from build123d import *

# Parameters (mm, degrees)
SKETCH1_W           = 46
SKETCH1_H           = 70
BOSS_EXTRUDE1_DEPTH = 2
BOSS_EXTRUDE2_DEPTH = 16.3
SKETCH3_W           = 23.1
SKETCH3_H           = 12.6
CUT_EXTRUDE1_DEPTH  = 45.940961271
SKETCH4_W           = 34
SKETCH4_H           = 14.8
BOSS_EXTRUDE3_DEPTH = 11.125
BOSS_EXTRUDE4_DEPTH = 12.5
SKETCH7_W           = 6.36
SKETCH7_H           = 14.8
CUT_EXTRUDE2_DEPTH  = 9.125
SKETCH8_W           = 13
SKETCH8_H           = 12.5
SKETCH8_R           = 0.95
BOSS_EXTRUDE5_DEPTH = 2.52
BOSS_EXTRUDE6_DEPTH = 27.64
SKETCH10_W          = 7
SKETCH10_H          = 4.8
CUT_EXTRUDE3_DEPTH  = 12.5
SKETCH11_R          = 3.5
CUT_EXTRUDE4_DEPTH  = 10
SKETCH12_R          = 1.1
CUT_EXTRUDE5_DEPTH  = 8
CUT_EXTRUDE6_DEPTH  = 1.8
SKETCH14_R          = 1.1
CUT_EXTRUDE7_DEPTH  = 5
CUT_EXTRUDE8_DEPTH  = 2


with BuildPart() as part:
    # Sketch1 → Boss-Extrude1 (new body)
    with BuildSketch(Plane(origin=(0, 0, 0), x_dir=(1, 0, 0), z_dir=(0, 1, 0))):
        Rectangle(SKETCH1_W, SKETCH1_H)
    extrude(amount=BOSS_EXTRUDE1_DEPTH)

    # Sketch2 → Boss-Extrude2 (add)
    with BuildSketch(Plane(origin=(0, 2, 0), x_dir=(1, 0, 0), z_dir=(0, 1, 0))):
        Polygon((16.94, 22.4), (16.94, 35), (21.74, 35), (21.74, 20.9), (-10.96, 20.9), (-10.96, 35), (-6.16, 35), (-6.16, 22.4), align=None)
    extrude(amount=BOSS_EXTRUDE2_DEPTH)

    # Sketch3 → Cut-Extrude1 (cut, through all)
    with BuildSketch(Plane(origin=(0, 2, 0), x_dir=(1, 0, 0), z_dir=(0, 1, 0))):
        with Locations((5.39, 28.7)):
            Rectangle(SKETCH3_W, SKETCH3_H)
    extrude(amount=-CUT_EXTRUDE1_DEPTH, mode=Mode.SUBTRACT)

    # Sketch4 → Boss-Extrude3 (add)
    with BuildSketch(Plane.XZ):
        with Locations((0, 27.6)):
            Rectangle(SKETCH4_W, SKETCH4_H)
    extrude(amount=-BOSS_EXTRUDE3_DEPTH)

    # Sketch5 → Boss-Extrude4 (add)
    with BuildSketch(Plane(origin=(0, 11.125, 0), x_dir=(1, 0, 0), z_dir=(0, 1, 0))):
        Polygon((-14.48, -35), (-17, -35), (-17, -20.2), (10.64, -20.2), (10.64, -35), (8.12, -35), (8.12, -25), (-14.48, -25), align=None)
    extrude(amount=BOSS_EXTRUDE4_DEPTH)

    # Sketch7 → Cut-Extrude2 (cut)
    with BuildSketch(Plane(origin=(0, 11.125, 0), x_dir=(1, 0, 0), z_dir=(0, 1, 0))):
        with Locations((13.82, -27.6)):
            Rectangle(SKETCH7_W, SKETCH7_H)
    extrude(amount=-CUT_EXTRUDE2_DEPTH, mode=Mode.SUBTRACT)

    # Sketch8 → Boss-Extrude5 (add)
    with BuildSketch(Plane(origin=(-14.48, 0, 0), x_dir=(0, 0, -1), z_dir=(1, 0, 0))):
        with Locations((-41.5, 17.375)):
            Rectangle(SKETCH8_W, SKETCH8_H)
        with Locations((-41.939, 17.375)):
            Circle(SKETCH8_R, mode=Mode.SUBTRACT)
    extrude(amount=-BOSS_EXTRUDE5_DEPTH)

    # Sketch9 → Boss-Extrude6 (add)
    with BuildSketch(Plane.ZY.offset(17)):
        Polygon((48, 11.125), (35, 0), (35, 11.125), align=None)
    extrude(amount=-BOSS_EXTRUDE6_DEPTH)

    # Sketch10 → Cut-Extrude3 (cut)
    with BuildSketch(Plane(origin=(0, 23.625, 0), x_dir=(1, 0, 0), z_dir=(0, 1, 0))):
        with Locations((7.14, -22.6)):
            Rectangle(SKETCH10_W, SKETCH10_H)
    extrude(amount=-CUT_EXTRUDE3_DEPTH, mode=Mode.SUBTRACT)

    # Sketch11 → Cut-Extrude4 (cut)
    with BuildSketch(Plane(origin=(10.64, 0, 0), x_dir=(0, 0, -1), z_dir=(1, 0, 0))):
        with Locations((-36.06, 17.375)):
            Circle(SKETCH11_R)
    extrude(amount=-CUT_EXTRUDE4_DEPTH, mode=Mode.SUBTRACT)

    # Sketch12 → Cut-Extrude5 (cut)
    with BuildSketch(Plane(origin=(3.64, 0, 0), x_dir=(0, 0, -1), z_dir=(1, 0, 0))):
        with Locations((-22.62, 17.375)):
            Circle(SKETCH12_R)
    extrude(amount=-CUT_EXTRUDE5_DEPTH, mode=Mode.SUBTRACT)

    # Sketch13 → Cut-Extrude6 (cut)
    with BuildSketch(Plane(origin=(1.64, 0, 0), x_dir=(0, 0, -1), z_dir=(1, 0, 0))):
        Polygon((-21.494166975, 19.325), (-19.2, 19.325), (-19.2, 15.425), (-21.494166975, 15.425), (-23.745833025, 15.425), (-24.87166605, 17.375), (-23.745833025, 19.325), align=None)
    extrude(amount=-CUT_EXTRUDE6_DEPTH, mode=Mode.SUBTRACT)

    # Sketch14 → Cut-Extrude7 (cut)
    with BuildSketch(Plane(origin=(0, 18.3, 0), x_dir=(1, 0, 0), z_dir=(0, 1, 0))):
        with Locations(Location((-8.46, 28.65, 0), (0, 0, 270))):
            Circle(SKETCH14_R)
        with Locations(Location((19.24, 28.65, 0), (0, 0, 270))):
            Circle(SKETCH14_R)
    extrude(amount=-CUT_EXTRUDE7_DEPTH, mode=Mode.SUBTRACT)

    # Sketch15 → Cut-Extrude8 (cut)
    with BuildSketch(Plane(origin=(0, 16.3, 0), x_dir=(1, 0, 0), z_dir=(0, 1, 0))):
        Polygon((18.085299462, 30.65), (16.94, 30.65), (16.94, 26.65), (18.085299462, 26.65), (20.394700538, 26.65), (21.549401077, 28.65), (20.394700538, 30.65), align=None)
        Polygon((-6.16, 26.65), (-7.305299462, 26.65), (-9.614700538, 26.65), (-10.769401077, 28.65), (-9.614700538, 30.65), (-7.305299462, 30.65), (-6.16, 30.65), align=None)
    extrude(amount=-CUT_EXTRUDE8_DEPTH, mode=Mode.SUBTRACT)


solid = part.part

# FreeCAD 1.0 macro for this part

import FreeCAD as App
import Part
import Sketcher

V = App.Vector
Q = App.Units.Quantity

doc = App.newDocument("Part")
body = doc.addObject("PartDesign::Body", "Body")

sketch1 = body.newObject("Sketcher::SketchObject", "Sketch")
sketch1.AttachmentSupport = (doc.getObject("XZ_Plane"), [""])
sketch1.MapMode = "FlatFace"
sketch1.addGeometry([
    Part.LineSegment(V(-23, -35, 0), V(-23, 35, 0)),
    Part.LineSegment(V(-23, 35, 0), V(23, 35, 0)),
    Part.LineSegment(V(23, 35, 0), V(23, -35, 0)),
    Part.LineSegment(V(23, -35, 0), V(-23, -35, 0)),
], False)
sketch1.addConstraint([
    Sketcher.Constraint("Coincident", 0, 2, 1, 1),
    Sketcher.Constraint("Coincident", 1, 2, 2, 1),
    Sketcher.Constraint("Coincident", 2, 2, 3, 1),
    Sketcher.Constraint("Coincident", 3, 2, 0, 1),
    Sketcher.Constraint("Vertical", 0),
    Sketcher.Constraint("Horizontal", 1),
    Sketcher.Constraint("Vertical", 2),
    Sketcher.Constraint("Horizontal", 3),
    Sketcher.Constraint("Symmetric", 0, 2, 2, 2, -1, 1),
    Sketcher.Constraint("DistanceX", 1, 1, 1, 2, Q("46 mm")),
    Sketcher.Constraint("DistanceY", 0, 1, 0, 2, Q("70 mm")),
])
pad1 = body.newObject("PartDesign::Pad", "Pad")
pad1.Profile = sketch1
pad1.Length = 2
pad1.Reversed = True

sketch2 = body.newObject("Sketcher::SketchObject", "Sketch001")
sketch2.AttachmentSupport = (doc.getObject("XZ_Plane"), [""])
sketch2.MapMode = "FlatFace"
sketch2.AttachmentOffset = App.Placement(V(0, 0, -2), App.Rotation())
sketch2.addGeometry([
    Part.LineSegment(V(16.9, -35, 0), V(16.9, -22.4, 0)),
    Part.LineSegment(V(16.9, -22.4, 0), V(-6.2, -22.4, 0)),
    Part.LineSegment(V(-6.2, -22.4, 0), V(-6.2, -35, 0)),
    Part.LineSegment(V(-6.2, -35, 0), V(-11, -35, 0)),
    Part.LineSegment(V(-11, -35, 0), V(-11, -20.9, 0)),
    Part.LineSegment(V(-11, -20.9, 0), V(21.7, -20.9, 0)),
    Part.LineSegment(V(21.7, -20.9, 0), V(21.7, -35, 0)),
    Part.LineSegment(V(21.7, -35, 0), V(16.9, -35, 0)),
], False)
sketch2.addConstraint([
    Sketcher.Constraint("Coincident", 0, 2, 1, 1),
    Sketcher.Constraint("Coincident", 1, 2, 2, 1),
    Sketcher.Constraint("Coincident", 2, 2, 3, 1),
    Sketcher.Constraint("Coincident", 3, 2, 4, 1),
    Sketcher.Constraint("Coincident", 4, 2, 5, 1),
    Sketcher.Constraint("Coincident", 5, 2, 6, 1),
    Sketcher.Constraint("Coincident", 6, 2, 7, 1),
    Sketcher.Constraint("Coincident", 7, 2, 0, 1),
    Sketcher.Constraint("Vertical", 0),
    Sketcher.Constraint("Horizontal", 1),
    Sketcher.Constraint("Vertical", 2),
    Sketcher.Constraint("Horizontal", 3),
    Sketcher.Constraint("Vertical", 4),
    Sketcher.Constraint("Horizontal", 5),
    Sketcher.Constraint("Vertical", 6),
    Sketcher.Constraint("Horizontal", 7),
    Sketcher.Constraint("Horizontal", 3, 2, 6, 2),
    Sketcher.Constraint("Equal", 3, 7),
    Sketcher.Constraint("DistanceX", 1, 2, 1, 1, Q("23.1 mm")),
    Sketcher.Constraint("DistanceX", 3, 2, 3, 1, Q("4.8 mm")),
    Sketcher.Constraint("DistanceY", 0, 1, 0, 2, Q("12.6 mm")),
    Sketcher.Constraint("DistanceY", 4, 1, 4, 2, Q("14.1 mm")),
    Sketcher.Constraint("DistanceY", 2, 2, -1, 1, Q("35 mm")),
    Sketcher.Constraint("DistanceX", -1, 1, 0, 2, Q("16.94 mm")),
])
pad2 = body.newObject("PartDesign::Pad", "Pad001")
pad2.Profile = sketch2
pad2.Length = 16.3
pad2.Reversed = True

sketch3 = body.newObject("Sketcher::SketchObject", "Sketch002")
sketch3.AttachmentSupport = (doc.getObject("XZ_Plane"), [""])
sketch3.MapMode = "FlatFace"
sketch3.AttachmentOffset = App.Placement(V(0, 0, -2), App.Rotation())
sketch3.addGeometry([
    Part.LineSegment(V(-6, -35, 0), V(-6, -22, 0)),
    Part.LineSegment(V(-6, -22, 0), V(17, -22, 0)),
    Part.LineSegment(V(17, -22, 0), V(17, -35, 0)),
    Part.LineSegment(V(17, -35, 0), V(-6, -35, 0)),
], False)
sketch3.addConstraint([
    Sketcher.Constraint("Coincident", 0, 2, 1, 1),
    Sketcher.Constraint("Coincident", 1, 2, 2, 1),
    Sketcher.Constraint("Coincident", 2, 2, 3, 1),
    Sketcher.Constraint("Coincident", 3, 2, 0, 1),
    Sketcher.Constraint("Vertical", 0),
    Sketcher.Constraint("Horizontal", 1),
    Sketcher.Constraint("Vertical", 2),
    Sketcher.Constraint("Horizontal", 3),
    Sketcher.Constraint("DistanceX", 1, 1, 1, 2, Q("23.1 mm")),
    Sketcher.Constraint("DistanceY", 0, 1, 0, 2, Q("12.6 mm")),
    Sketcher.Constraint("DistanceY", 2, 2, -1, 1, Q("35 mm")),
    Sketcher.Constraint("DistanceX", 0, 2, -1, 1, Q("6.16 mm")),
])
pocket1 = body.newObject("PartDesign::Pocket", "Pocket")
pocket1.Profile = sketch3
pocket1.Type = "ThroughAll"
pocket1.Reversed = True

sketch4 = body.newObject("Sketcher::SketchObject", "Sketch003")
sketch4.AttachmentSupport = (doc.getObject("XZ_Plane"), [""])
sketch4.MapMode = "FlatFace"
sketch4.addGeometry([
    Part.LineSegment(V(-17, 35, 0), V(-17, 20, 0)),
    Part.LineSegment(V(-17, 20, 0), V(17, 20, 0)),
    Part.LineSegment(V(17, 20, 0), V(17, 35, 0)),
    Part.LineSegment(V(17, 35, 0), V(-17, 35, 0)),
], False)
sketch4.addConstraint([
    Sketcher.Constraint("Coincident", 0, 2, 1, 1),
    Sketcher.Constraint("Coincident", 1, 2, 2, 1),
    Sketcher.Constraint("Coincident", 2, 2, 3, 1),
    Sketcher.Constraint("Coincident", 3, 2, 0, 1),
    Sketcher.Constraint("Vertical", 0),
    Sketcher.Constraint("Horizontal", 1),
    Sketcher.Constraint("Vertical", 2),
    Sketcher.Constraint("Horizontal", 3),
    Sketcher.Constraint("DistanceX", 1, 1, 1, 2, Q("34 mm")),
    Sketcher.Constraint("DistanceY", 0, 2, 0, 1, Q("14.8 mm")),
    Sketcher.Constraint("DistanceX", 0, 2, -1, 1, Q("17 mm")),
    Sketcher.Constraint("DistanceY", -1, 1, 2, 2, Q("35 mm")),
])
pad3 = body.newObject("PartDesign::Pad", "Pad002")
pad3.Profile = sketch4
pad3.Length = 11.125
pad3.Reversed = True

sketch5 = body.newObject("Sketcher::SketchObject", "Sketch004")
sketch5.AttachmentSupport = (doc.getObject("XZ_Plane"), [""])
sketch5.MapMode = "FlatFace"
sketch5.AttachmentOffset = App.Placement(V(0, 0, -11.125), App.Rotation())
sketch5.addGeometry([
    Part.LineSegment(V(-17, 35, 0), V(-14.5, 35, 0)),
    Part.LineSegment(V(-14.5, 35, 0), V(-14.5, 25, 0)),
    Part.LineSegment(V(-14.5, 25, 0), V(8.1, 25, 0)),
    Part.LineSegment(V(8.1, 25, 0), V(8.1, 35, 0)),
    Part.LineSegment(V(8.1, 35, 0), V(10.6, 35, 0)),
    Part.LineSegment(V(10.6, 35, 0), V(10.6, 20.2, 0)),
    Part.LineSegment(V(10.6, 20.2, 0), V(-17, 20.2, 0)),
    Part.LineSegment(V(-17, 20.2, 0), V(-17, 35, 0)),
], False)
sketch5.addConstraint([
    Sketcher.Constraint("Coincident", 0, 2, 1, 1),
    Sketcher.Constraint("Coincident", 1, 2, 2, 1),
    Sketcher.Constraint("Coincident", 2, 2, 3, 1),
    Sketcher.Constraint("Coincident", 3, 2, 4, 1),
    Sketcher.Constraint("Coincident", 4, 2, 5, 1),
    Sketcher.Constraint("Coincident", 5, 2, 6, 1),
    Sketcher.Constraint("Coincident", 6, 2, 7, 1),
    Sketcher.Constraint("Coincident", 7, 2, 0, 1),
    Sketcher.Constraint("Horizontal", 0),
    Sketcher.Constraint("Vertical", 1),
    Sketcher.Constraint("Horizontal", 2),
    Sketcher.Constraint("Vertical", 3),
    Sketcher.Constraint("Horizontal", 4),
    Sketcher.Constraint("Vertical", 5),
    Sketcher.Constraint("Horizontal", 6),
    Sketcher.Constraint("Vertical", 7),
    Sketcher.Constraint("Horizontal", 0, 2, 3, 2),
    Sketcher.Constraint("Equal", 0, 4),
    Sketcher.Constraint("DistanceY", 1, 2, 1, 1, Q("10 mm")),
    Sketcher.Constraint("DistanceX", 2, 1, 2, 2, Q("22.6 mm")),
    Sketcher.Constraint("DistanceY", 5, 2, 5, 1, Q("14.8 mm")),
    Sketcher.Constraint("DistanceY", -1, 1, 0, 2, Q("35 mm")),
    Sketcher.Constraint("DistanceX", 6, 2, -1, 1, Q("17 mm")),
    Sketcher.Constraint("DistanceX", 0, 1, 0, 2, Q("2.52 mm")),
])
pad4 = body.newObject("PartDesign::Pad", "Pad003")
pad4.Profile = sketch5
pad4.Length = 12.5
pad4.Reversed = True

sketch6 = body.newObject("Sketcher::SketchObject", "Sketch005")
sketch6.AttachmentSupport = (doc.getObject("XZ_Plane"), [""])
sketch6.MapMode = "FlatFace"
sketch6.AttachmentOffset = App.Placement(V(0, 0, -11.125), App.Rotation())
sketch6.addGeometry([
    Part.LineSegment(V(11, 20, 0), V(11, 35, 0)),
    Part.LineSegment(V(11, 35, 0), V(17, 35, 0)),
    Part.LineSegment(V(17, 35, 0), V(17, 20, 0)),
    Part.LineSegment(V(17, 20, 0), V(11, 20, 0)),
], False)
sketch6.addConstraint([
    Sketcher.Constraint("Coincident", 0, 2, 1, 1),
    Sketcher.Constraint("Coincident", 1, 2, 2, 1),
    Sketcher.Constraint("Coincident", 2, 2, 3, 1),
    Sketcher.Constraint("Coincident", 3, 2, 0, 1),
    Sketcher.Constraint("Vertical", 0),
    Sketcher.Constraint("Horizontal", 1),
    Sketcher.Constraint("Vertical", 2),
    Sketcher.Constraint("Horizontal", 3),
    Sketcher.Constraint("DistanceY", 0, 1, 0, 2, Q("14.8 mm")),
    Sketcher.Constraint("DistanceY", -1, 1, 0, 2, Q("35 mm")),
    Sketcher.Constraint("DistanceX", -1, 1, 1, 2, Q("17 mm")),
    Sketcher.Constraint("DistanceX", 1, 1, 1, 2, Q("6.36 mm")),
])
pocket2 = body.newObject("PartDesign::Pocket", "Pocket001")
pocket2.Profile = sketch6
pocket2.Length = 9.125
pocket2.Reversed = True

sketch7 = body.newObject("Sketcher::SketchObject", "Sketch006")
sketch7.AttachmentSupport = (doc.getObject("YZ_Plane"), [""])
sketch7.MapMode = "FlatFace"
sketch7.AttachmentOffset = App.Placement(V(0, 0, -14.48), App.Rotation())
sketch7.addGeometry([
    Part.LineSegment(V(23.6, 48, 0), V(11.1, 48, 0)),
    Part.LineSegment(V(11.1, 48, 0), V(11.1, 35, 0)),
    Part.LineSegment(V(11.1, 35, 0), V(23.6, 35, 0)),
    Part.LineSegment(V(23.6, 35, 0), V(23.6, 48, 0)),
    Part.Circle(V(17.4, 41.9, 0), V(0, 0, 1), 0.9),
], False)
sketch7.addConstraint([
    Sketcher.Constraint("Coincident", 0, 2, 1, 1),
    Sketcher.Constraint("Coincident", 1, 2, 2, 1),
    Sketcher.Constraint("Coincident", 2, 2, 3, 1),
    Sketcher.Constraint("Coincident", 3, 2, 0, 1),
    Sketcher.Constraint("Horizontal", 0),
    Sketcher.Constraint("Vertical", 1),
    Sketcher.Constraint("Horizontal", 2),
    Sketcher.Constraint("Vertical", 3),
    Sketcher.Constraint("Diameter", 4, Q("1.9 mm")),
    Sketcher.Constraint("DistanceY", 1, 2, 1, 1, Q("13 mm")),
    Sketcher.Constraint("DistanceX", 0, 2, 0, 1, Q("12.5 mm")),
    Sketcher.Constraint("DistanceY", -1, 1, 0, 2, Q("48 mm")),
    Sketcher.Constraint("DistanceX", 0, 2, 4, 3, Q("6.25 mm")),
    Sketcher.Constraint("DistanceX", -1, 1, 4, 3, Q("17.375 mm")),
    Sketcher.Constraint("DistanceY", -1, 1, 4, 3, Q("41.939 mm")),
])
pad5 = body.newObject("PartDesign::Pad", "Pad004")
pad5.Profile = sketch7
pad5.Length = 2.52
pad5.Reversed = True

sketch8 = body.newObject("Sketcher::SketchObject", "Sketch007")
sketch8.AttachmentSupport = (doc.getObject("YZ_Plane"), [""])
sketch8.MapMode = "FlatFace"
sketch8.AttachmentOffset = App.Placement(V(0, 0, -17), App.Rotation())
sketch8.addGeometry([
    Part.LineSegment(V(0, 35, 0), V(11, 48, 0)),
    Part.LineSegment(V(11, 48, 0), V(11, 35, 0)),
    Part.LineSegment(V(11, 35, 0), V(0, 35, 0)),
], False)
sketch8.addConstraint([
    Sketcher.Constraint("Coincident", 0, 2, 1, 1),
    Sketcher.Constraint("Coincident", 1, 2, 2, 1),
    Sketcher.Constraint("Coincident", 2, 2, 0, 1),
    Sketcher.Constraint("Vertical", 1),
    Sketcher.Constraint("Horizontal", 2),
    Sketcher.Constraint("PointOnObject", 2, 2, -2),
    Sketcher.Constraint("DistanceY", 1, 2, 1, 1, Q("13 mm")),
    Sketcher.Constraint("DistanceY", -1, 1, 0, 2, Q("48 mm")),
    Sketcher.Constraint("DistanceX", 2, 2, 2, 1, Q("11.125 mm")),
])
pad6 = body.newObject("PartDesign::Pad", "Pad005")
pad6.Profile = sketch8
pad6.Length = 27.64

sketch9 = body.newObject("Sketcher::SketchObject", "Sketch008")
sketch9.AttachmentSupport = (doc.getObject("XZ_Plane"), [""])
sketch9.MapMode = "FlatFace"
sketch9.AttachmentOffset = App.Placement(V(0, 0, -23.625), App.Rotation())
sketch9.addGeometry([
    Part.LineSegment(V(3.6, 20.2, 0), V(3.6, 25, 0)),
    Part.LineSegment(V(3.6, 25, 0), V(10.6, 25, 0)),
    Part.LineSegment(V(10.6, 25, 0), V(10.6, 20.2, 0)),
    Part.LineSegment(V(10.6, 20.2, 0), V(3.6, 20.2, 0)),
], False)
sketch9.addConstraint([
    Sketcher.Constraint("Coincident", 0, 2, 1, 1),
    Sketcher.Constraint("Coincident", 1, 2, 2, 1),
    Sketcher.Constraint("Coincident", 2, 2, 3, 1),
    Sketcher.Constraint("Coincident", 3, 2, 0, 1),
    Sketcher.Constraint("Vertical", 0),
    Sketcher.Constraint("Horizontal", 1),
    Sketcher.Constraint("Vertical", 2),
    Sketcher.Constraint("Horizontal", 3),
    Sketcher.Constraint("DistanceX", 1, 1, 1, 2, Q("7 mm")),
    Sketcher.Constraint("DistanceY", 0, 1, 0, 2, Q("4.8 mm")),
    Sketcher.Constraint("DistanceY", -1, 1, 0, 2, Q("25 mm")),
    Sketcher.Constraint("DistanceX", -1, 1, 0, 2, Q("3.64 mm")),
])
pocket3 = body.newObject("PartDesign::Pocket", "Pocket002")
pocket3.Profile = sketch9
pocket3.Length = 12.5
pocket3.Reversed = True

sketch10 = body.newObject("Sketcher::SketchObject", "Sketch009")
sketch10.AttachmentSupport = (doc.getObject("YZ_Plane"), [""])
sketch10.MapMode = "FlatFace"
sketch10.AttachmentOffset = App.Placement(V(0, 0, 10.64), App.Rotation())
sketch10.addGeometry(Part.Circle(V(17.4, 36.1, 0), V(0, 0, 1), 3.5), False)
sketch10.addConstraint([
    Sketcher.Constraint("Diameter", 0, Q("7 mm")),
    Sketcher.Constraint("DistanceY", -1, 1, 0, 3, Q("36.06 mm")),
    Sketcher.Constraint("DistanceX", -1, 1, 0, 3, Q("17.375 mm")),
])
pocket4 = body.newObject("PartDesign::Pocket", "Pocket003")
pocket4.Profile = sketch10
pocket4.Length = 10

sketch11 = body.newObject("Sketcher::SketchObject", "Sketch010")
sketch11.AttachmentSupport = (doc.getObject("YZ_Plane"), [""])
sketch11.MapMode = "FlatFace"
sketch11.AttachmentOffset = App.Placement(V(0, 0, 3.64), App.Rotation())
sketch11.addGeometry(Part.Circle(V(17.4, 22.6, 0), V(0, 0, 1), 1.1), False)
sketch11.addConstraint([
    Sketcher.Constraint("Diameter", 0, Q("2.2 mm")),
    Sketcher.Constraint("DistanceY", -1, 1, 0, 3, Q("22.62 mm")),
    Sketcher.Constraint("DistanceX", -1, 1, 0, 3, Q("17.375 mm")),
])
pocket5 = body.newObject("PartDesign::Pocket", "Pocket004")
pocket5.Profile = sketch11
pocket5.Length = 8

sketch12 = body.newObject("Sketcher::SketchObject", "Sketch011")
sketch12.AttachmentSupport = (doc.getObject("YZ_Plane"), [""])
sketch12.MapMode = "FlatFace"
sketch12.AttachmentOffset = App.Placement(V(0, 0, 1.64), App.Rotation())
sketch12.addGeometry([
    Part.LineSegment(V(19.3, 19.2, 0), V(19.3, 23.7, 0)),
    Part.LineSegment(V(19.3, 23.7, 0), V(17.4, 24.9, 0)),
    Part.LineSegment(V(17.4, 24.9, 0), V(15.4, 23.7, 0)),
    Part.LineSegment(V(15.4, 23.7, 0), V(15.4, 19.2, 0)),
    Part.LineSegment(V(15.4, 19.2, 0), V(19.3, 19.2, 0)),
], False)
sketch12.addConstraint([
    Sketcher.Constraint("Coincident", 0, 2, 1, 1),
    Sketcher.Constraint("Coincident", 1, 2, 2, 1),
    Sketcher.Constraint("Coincident", 2, 2, 3, 1),
    Sketcher.Constraint("Coincident", 3, 2, 4, 1),
    Sketcher.Constraint("Coincident", 4, 2, 0, 1),
    Sketcher.Constraint("Vertical", 0),
    Sketcher.Constraint("Vertical", 3),
    Sketcher.Constraint("Horizontal", 4),
    Sketcher.Constraint("Horizontal", 0, 2, 2, 2),
    Sketcher.Constraint("Equal", 1, 2),
    Sketcher.Constraint("Angle", 1, Q("150 deg")),
    Sketcher.Constraint("DistanceX", 4, 1, 4, 2, Q("3.9 mm")),
    Sketcher.Constraint("DistanceY", -1, 1, 3, 2, Q("19.2 mm")),
    Sketcher.Constraint("DistanceX", -1, 1, 0, 2, Q("19.325 mm")),
    Sketcher.Constraint("DistanceY", 0, 1, 0, 2, Q("4.545833 mm")),
])
pocket6 = body.newObject("PartDesign::Pocket", "Pocket005")
pocket6.Profile = sketch12
pocket6.Length = 1.8

sketch13 = body.newObject("Sketcher::SketchObject", "Sketch012")
sketch13.AttachmentSupport = (doc.getObject("XZ_Plane"), [""])
sketch13.MapMode = "FlatFace"
sketch13.AttachmentOffset = App.Placement(V(0, 0, -18.3), App.Rotation())
sketch13.addGeometry([
    Part.Circle(V(-8.5, -28.6, 0), V(0, 0, 1), 1.1),
    Part.Circle(V(19.2, -28.6, 0), V(0, 0, 1), 1.1),
], False)
sketch13.addConstraint([
    Sketcher.Constraint("Equal", 0, 1),
    Sketcher.Constraint("Horizontal", 0, 3, 1, 3),
    Sketcher.Constraint("Diameter", 0, Q("2.2 mm")),
    Sketcher.Constraint("DistanceX", 0, 3, 1, 3, Q("27.7 mm")),
    Sketcher.Constraint("DistanceX", 0, 3, -1, 1, Q("8.46 mm")),
    Sketcher.Constraint("DistanceY", 0, 3, -1, 1, Q("28.65 mm")),
])
pocket7 = body.newObject("PartDesign::Pocket", "Pocket006")
pocket7.Profile = sketch13
pocket7.Length = 5
pocket7.Reversed = True

sketch14 = body.newObject("Sketcher::SketchObject", "Sketch013")
sketch14.AttachmentSupport = (doc.getObject("XZ_Plane"), [""])
sketch14.MapMode = "FlatFace"
sketch14.AttachmentOffset = App.Placement(V(0, 0, -16.3), App.Rotation())
sketch14.addGeometry([
    Part.LineSegment(V(16.9, -30.6, 0), V(16.9, -26.6, 0)),
    Part.LineSegment(V(16.9, -26.6, 0), V(20.4, -26.6, 0)),
    Part.LineSegment(V(20.4, -26.6, 0), V(21.5, -28.6, 0)),
    Part.LineSegment(V(21.5, -28.6, 0), V(20.4, -30.6, 0)),
    Part.LineSegment(V(20.4, -30.6, 0), V(16.9, -30.6, 0)),
    Part.LineSegment(V(-9.6, -26.6, 0), V(-6.2, -26.6, 0)),
    Part.LineSegment(V(-6.2, -26.6, 0), V(-6.2, -30.6, 0)),
    Part.LineSegment(V(-6.2, -30.6, 0), V(-9.6, -30.6, 0)),
    Part.LineSegment(V(-9.6, -30.6, 0), V(-10.8, -28.6, 0)),
    Part.LineSegment(V(-10.8, -28.6, 0), V(-9.6, -26.6, 0)),
], False)
sketch14.addConstraint([
    Sketcher.Constraint("Coincident", 0, 2, 1, 1),
    Sketcher.Constraint("Coincident", 1, 2, 2, 1),
    Sketcher.Constraint("Coincident", 2, 2, 3, 1),
    Sketcher.Constraint("Coincident", 3, 2, 4, 1),
    Sketcher.Constraint("Coincident", 4, 2, 0, 1),
    Sketcher.Constraint("Coincident", 5, 2, 6, 1),
    Sketcher.Constraint("Coincident", 6, 2, 7, 1),
    Sketcher.Constraint("Coincident", 7, 2, 8, 1),
    Sketcher.Constraint("Coincident", 8, 2, 9, 1),
    Sketcher.Constraint("Coincident", 9, 2, 5, 1),
    Sketcher.Constraint("Vertical", 0),
    Sketcher.Constraint("Horizontal", 1),
    Sketcher.Constraint("Horizontal", 4),
    Sketcher.Constraint("Horizontal", 5),
    Sketcher.Constraint("Vertical", 6),
    Sketcher.Constraint("Horizontal", 7),
    Sketcher.Constraint("Parallel", 2, 8),
    Sketcher.Constraint("Parallel", 3, 9),
    Sketcher.Constraint("Horizontal", 1, 2, 5, 2),
    Sketcher.Constraint("Horizontal", 4, 2, 6, 2),
    Sketcher.Constraint("Horizontal", 2, 2, 8, 2),
    Sketcher.Constraint("Vertical", 1, 2, 3, 2),
    Sketcher.Constraint("Vertical", 7, 2, 9, 2),
    Sketcher.Constraint("Equal", 4, 5),
    Sketcher.Constraint("DistanceY", 0, 1, 0, 2, Q("4 mm")),
    Sketcher.Constraint("Angle", 2, Q("-60 deg")),
    Sketcher.Constraint("DistanceX", 5, 2, 0, 2, Q("23.1 mm")),
    Sketcher.Constraint("DistanceX", -1, 1, 0, 2, Q("16.94 mm")),
    Sketcher.Constraint("DistanceY", 0, 2, -1, 1, Q("26.65 mm")),
    Sketcher.Constraint("DistanceX", 1, 1, 1, 2, Q("3.454701 mm")),
])
pocket8 = body.newObject("PartDesign::Pocket", "Pocket007")
pocket8.Profile = sketch14
pocket8.Length = 2
pocket8.Reversed = True

doc.recompute()
